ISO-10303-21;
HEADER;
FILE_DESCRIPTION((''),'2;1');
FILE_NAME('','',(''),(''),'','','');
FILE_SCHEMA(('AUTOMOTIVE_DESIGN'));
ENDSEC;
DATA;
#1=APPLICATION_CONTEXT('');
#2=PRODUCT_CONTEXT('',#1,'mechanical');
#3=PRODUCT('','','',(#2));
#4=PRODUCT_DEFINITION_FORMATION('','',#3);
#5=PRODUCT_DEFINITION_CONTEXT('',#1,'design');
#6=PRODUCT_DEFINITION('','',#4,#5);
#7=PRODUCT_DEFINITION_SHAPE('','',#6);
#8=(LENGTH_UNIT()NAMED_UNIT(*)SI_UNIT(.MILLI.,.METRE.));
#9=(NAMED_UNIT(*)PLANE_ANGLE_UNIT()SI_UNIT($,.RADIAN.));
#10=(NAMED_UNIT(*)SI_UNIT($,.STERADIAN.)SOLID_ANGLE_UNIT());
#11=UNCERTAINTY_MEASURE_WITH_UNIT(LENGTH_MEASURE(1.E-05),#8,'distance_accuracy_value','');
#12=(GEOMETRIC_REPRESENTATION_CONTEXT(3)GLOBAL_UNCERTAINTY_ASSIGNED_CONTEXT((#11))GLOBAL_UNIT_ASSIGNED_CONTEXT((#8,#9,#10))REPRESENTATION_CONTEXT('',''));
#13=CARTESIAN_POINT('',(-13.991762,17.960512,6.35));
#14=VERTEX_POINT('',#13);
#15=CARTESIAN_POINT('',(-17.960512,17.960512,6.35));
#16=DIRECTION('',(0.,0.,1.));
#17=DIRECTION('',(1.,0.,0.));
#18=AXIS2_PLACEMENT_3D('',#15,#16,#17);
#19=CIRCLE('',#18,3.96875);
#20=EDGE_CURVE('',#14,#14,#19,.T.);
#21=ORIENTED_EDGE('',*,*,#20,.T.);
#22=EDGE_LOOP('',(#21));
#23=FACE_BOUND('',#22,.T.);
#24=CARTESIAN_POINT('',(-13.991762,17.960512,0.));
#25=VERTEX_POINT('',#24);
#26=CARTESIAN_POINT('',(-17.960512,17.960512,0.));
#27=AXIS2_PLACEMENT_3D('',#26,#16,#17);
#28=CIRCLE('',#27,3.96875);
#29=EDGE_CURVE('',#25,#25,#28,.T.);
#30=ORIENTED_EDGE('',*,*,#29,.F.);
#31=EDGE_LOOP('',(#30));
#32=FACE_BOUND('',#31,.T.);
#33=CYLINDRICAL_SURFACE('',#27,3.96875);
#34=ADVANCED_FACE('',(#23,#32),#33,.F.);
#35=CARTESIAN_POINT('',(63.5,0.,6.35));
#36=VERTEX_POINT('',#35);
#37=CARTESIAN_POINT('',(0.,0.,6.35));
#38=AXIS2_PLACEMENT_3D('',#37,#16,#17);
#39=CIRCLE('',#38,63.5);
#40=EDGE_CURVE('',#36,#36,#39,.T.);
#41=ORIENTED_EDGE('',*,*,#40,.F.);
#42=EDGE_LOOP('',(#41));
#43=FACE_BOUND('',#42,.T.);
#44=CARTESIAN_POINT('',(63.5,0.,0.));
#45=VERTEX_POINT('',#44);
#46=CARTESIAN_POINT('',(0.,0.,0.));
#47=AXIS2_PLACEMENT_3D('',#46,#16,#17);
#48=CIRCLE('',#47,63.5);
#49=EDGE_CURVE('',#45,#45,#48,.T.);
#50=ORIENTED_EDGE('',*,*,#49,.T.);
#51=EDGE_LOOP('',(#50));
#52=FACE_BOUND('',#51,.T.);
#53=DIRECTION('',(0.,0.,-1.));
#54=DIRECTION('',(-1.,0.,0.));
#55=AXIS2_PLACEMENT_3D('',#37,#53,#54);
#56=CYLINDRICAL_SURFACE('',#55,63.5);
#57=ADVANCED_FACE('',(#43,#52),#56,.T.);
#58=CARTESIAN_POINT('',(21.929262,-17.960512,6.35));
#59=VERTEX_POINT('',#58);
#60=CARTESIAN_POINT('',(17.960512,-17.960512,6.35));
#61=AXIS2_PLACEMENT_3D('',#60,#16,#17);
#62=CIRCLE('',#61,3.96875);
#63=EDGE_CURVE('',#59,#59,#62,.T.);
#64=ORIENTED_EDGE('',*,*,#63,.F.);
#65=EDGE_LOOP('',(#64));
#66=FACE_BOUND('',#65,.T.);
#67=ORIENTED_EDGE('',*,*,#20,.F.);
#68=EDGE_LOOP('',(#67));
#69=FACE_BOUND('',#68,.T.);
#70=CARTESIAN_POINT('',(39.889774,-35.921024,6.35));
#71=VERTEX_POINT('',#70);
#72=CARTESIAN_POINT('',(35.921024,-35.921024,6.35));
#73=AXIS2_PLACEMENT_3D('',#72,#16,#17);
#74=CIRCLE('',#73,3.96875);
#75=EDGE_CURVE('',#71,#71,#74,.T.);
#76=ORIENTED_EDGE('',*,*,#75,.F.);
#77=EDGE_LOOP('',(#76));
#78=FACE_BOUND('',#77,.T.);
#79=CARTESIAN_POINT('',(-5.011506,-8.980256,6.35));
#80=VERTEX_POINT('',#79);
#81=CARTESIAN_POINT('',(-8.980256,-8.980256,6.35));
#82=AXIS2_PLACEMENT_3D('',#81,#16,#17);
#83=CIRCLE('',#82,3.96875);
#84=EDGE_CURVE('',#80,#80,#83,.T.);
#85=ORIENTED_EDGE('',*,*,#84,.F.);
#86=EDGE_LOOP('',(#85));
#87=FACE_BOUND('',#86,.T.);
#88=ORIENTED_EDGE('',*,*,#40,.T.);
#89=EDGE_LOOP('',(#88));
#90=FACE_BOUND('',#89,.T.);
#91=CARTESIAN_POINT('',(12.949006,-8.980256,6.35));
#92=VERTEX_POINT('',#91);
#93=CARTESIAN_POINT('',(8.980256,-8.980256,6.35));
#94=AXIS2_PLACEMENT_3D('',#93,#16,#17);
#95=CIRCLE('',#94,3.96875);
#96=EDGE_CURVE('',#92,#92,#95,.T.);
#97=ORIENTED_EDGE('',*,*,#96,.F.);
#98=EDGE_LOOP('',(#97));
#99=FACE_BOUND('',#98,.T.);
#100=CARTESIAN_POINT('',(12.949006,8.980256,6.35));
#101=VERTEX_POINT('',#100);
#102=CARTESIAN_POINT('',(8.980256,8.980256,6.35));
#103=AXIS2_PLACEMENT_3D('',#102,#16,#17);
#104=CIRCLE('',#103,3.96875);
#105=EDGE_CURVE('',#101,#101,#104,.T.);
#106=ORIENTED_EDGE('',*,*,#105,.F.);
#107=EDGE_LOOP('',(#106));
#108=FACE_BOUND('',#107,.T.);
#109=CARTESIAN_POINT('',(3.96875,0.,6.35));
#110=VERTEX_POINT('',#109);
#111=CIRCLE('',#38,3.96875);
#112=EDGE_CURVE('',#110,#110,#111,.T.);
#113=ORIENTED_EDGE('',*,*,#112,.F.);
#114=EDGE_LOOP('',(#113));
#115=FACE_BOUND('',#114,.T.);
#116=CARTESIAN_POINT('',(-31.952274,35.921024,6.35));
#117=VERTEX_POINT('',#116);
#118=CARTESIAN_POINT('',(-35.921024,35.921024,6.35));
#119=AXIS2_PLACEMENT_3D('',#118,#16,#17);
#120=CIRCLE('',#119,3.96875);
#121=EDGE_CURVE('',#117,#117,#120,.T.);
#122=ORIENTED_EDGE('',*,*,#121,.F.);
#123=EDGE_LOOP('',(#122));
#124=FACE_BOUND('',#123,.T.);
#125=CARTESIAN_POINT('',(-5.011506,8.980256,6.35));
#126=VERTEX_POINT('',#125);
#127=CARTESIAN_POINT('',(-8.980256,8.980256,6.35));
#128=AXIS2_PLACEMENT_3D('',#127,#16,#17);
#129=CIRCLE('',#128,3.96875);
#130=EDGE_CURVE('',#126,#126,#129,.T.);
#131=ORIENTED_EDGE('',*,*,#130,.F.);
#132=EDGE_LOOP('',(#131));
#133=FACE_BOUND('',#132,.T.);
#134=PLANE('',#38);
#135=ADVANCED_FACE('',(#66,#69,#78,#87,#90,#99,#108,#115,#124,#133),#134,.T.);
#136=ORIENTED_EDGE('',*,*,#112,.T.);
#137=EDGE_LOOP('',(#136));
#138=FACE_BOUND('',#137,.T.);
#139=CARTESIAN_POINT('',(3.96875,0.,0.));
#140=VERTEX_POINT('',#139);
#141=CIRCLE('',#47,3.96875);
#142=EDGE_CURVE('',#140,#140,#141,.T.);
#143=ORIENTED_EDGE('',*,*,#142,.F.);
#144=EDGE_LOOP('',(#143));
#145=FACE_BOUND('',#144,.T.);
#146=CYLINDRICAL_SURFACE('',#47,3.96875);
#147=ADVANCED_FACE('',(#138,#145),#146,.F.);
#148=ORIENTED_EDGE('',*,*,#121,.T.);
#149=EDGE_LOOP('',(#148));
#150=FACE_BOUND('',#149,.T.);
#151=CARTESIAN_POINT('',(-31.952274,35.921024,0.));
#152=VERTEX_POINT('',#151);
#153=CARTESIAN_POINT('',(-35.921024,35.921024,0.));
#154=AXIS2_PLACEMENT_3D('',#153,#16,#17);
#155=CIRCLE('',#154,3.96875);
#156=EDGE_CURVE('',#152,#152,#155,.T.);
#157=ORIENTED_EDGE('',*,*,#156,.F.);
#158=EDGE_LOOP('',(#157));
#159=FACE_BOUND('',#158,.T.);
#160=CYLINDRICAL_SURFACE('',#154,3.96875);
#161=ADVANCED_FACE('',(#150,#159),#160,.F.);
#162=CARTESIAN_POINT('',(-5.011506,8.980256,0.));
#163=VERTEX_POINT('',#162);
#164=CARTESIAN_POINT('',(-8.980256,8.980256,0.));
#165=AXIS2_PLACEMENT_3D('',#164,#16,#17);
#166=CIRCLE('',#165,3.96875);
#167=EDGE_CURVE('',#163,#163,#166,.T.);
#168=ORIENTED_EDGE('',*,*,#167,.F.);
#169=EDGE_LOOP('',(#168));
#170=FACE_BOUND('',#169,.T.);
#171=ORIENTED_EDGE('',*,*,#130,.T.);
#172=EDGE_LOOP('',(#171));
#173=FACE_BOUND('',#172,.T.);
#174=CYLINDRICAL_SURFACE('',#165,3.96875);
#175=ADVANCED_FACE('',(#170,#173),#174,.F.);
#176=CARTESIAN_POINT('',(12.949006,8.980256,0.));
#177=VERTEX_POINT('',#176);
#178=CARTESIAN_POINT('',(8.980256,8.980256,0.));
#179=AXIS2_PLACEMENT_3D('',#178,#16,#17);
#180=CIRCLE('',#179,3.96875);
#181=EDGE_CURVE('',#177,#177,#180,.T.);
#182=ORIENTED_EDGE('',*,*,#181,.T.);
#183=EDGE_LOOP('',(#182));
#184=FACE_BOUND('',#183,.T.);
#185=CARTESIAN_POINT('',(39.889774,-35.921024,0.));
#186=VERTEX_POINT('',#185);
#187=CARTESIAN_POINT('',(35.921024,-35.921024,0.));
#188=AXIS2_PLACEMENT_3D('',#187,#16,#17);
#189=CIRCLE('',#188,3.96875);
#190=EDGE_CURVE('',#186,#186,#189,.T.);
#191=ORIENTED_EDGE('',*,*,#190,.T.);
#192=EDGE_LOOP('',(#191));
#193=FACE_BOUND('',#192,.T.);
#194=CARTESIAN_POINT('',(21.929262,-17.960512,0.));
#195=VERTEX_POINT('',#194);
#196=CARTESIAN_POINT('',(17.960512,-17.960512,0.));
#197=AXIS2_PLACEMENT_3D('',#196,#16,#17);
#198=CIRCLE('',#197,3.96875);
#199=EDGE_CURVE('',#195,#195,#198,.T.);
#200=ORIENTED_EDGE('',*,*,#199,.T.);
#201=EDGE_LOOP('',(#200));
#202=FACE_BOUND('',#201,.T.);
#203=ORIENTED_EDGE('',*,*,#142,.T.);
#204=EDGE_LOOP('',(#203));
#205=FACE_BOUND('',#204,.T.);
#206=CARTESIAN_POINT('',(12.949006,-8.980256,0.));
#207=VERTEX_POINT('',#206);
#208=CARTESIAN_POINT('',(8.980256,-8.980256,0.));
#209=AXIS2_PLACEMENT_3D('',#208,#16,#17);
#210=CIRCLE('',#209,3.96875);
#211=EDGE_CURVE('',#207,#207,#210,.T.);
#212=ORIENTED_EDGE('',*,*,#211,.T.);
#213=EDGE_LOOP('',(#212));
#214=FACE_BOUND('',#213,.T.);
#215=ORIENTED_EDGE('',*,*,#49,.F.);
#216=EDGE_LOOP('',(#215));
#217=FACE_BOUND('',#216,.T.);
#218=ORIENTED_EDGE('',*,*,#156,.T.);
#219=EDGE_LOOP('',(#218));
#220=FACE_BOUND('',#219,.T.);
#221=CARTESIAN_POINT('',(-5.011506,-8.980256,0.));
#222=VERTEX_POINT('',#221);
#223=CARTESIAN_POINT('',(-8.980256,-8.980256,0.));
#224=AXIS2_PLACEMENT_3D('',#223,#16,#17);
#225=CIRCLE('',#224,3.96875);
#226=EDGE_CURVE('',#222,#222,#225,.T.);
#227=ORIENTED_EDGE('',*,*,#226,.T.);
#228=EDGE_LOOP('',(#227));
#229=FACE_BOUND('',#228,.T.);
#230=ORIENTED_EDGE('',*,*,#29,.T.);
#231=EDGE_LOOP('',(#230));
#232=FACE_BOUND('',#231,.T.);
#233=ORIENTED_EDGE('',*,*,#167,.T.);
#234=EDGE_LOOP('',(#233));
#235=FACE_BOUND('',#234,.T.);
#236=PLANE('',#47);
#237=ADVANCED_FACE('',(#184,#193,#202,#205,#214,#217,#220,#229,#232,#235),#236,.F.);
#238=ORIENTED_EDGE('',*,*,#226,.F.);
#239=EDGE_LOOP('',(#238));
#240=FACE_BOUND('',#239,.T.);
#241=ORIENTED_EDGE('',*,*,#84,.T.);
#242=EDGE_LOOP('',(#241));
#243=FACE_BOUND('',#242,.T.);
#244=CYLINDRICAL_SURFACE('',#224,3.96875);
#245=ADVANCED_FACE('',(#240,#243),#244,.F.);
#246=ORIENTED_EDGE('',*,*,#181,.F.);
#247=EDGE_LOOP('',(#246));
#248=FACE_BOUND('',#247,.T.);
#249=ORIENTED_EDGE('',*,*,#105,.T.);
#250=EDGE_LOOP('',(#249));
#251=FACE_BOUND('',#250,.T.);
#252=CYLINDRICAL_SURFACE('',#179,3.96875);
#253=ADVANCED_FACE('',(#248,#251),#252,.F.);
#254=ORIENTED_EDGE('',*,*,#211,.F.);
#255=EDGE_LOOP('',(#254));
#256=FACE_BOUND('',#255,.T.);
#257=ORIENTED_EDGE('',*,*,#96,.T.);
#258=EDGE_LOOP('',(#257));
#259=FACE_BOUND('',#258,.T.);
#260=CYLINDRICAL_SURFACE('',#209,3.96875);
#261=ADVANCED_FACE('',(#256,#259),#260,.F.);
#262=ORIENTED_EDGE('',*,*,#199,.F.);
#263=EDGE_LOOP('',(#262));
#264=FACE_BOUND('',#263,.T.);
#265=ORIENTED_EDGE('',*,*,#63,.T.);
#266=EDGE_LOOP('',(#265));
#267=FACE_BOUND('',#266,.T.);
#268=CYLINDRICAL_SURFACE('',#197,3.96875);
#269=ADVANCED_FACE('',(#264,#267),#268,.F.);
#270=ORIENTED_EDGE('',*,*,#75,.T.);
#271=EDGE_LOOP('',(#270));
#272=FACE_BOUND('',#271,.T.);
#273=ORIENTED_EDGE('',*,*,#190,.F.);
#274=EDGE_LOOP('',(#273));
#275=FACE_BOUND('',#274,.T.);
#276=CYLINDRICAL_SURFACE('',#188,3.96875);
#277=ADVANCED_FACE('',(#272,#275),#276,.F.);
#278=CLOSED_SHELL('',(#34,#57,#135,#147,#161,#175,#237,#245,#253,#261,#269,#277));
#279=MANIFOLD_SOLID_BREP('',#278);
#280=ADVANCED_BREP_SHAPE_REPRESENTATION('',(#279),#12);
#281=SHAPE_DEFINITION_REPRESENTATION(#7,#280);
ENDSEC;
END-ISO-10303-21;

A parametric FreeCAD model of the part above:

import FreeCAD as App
import Part
import Sketcher
from FreeCAD import Vector
Q = App.Units.Quantity

doc = App.newDocument("Part")
body = doc.addObject("PartDesign::Body", "Body")

sketch1 = body.newObject("Sketcher::SketchObject", "Sketch")
sketch1.AttachmentSupport = (doc.getObject("XY_Plane"), [""])
sketch1.MapMode = "FlatFace"
sketch1.addGeometry(Part.Circle(Vector(0, 0, 0), Vector(0, 0, 1), 64), False)
sketch1.addConstraint([
    Sketcher.Constraint("Coincident", 0, 3, -1, 1),
    Sketcher.Constraint("Diameter", 0, Q("5 in")),
])
pad1 = body.newObject("PartDesign::Pad", "Pad")
pad1.Profile = sketch1
pad1.Length = Q("0.25 in")

sketch2 = body.newObject("Sketcher::SketchObject", "Sketch001")
sketch2.AttachmentSupport = (doc.getObject("XY_Plane"), [""])
sketch2.MapMode = "FlatFace"
sketch2.AttachmentOffset = App.Placement(Vector(0, 0, 0.25 * 25.4), App.Rotation())
sketch2.addGeometry([
    Part.Circle(Vector(0, 0, 0), Vector(0, 0, 1), 4),
    Part.Circle(Vector(-9, 9, 0), Vector(0, 0, 1), 4),
    Part.Circle(Vector(9, -9, 0), Vector(0, 0, 1), 4),
    Part.Circle(Vector(9, 9, 0), Vector(0, 0, 1), 4),
    Part.Circle(Vector(-9, -9, 0), Vector(0, 0, 1), 4),
    Part.Circle(Vector(18, -18, 0), Vector(0, 0, 1), 4),
    Part.Circle(Vector(35.9, -35.9, 0), Vector(0, 0, 1), 4),
    Part.Circle(Vector(-18, 18, 0), Vector(0, 0, 1), 4),
    Part.Circle(Vector(-35.9, 35.9, 0), Vector(0, 0, 1), 4),
], False)
sketch2.addConstraint([
    Sketcher.Constraint("Coincident", 0, 3, -1, 1),
    Sketcher.Constraint("Equal", 0, 1),
    Sketcher.Constraint("Equal", 1, 2),
    Sketcher.Constraint("Equal", 2, 3),
    Sketcher.Constraint("Equal", 3, 4),
    Sketcher.Constraint("Equal", 4, 5),
    Sketcher.Constraint("Equal", 5, 6),
    Sketcher.Constraint("Equal", 6, 7),
    Sketcher.Constraint("Equal", 7, 8),
    Sketcher.Constraint("Symmetric", 1, 3, 2, 3, -1, 1),
    Sketcher.Constraint("Symmetric", 3, 3, 4, 3, -1, 1),
    Sketcher.Constraint("Symmetric", 5, 3, 7, 3, -1, 1),
    Sketcher.Constraint("Symmetric", 6, 3, 8, 3, -1, 1),
    Sketcher.Constraint("Symmetric", 1, 3, 3, 3, -2),
    Sketcher.Constraint("Diameter", 0, Q("0.3125 in")),
    Sketcher.Constraint("DistanceY", 5, 3, 3, 3, 26.940768),
    Sketcher.Constraint("DistanceX", 4, 3, 5, 3, 26.940768),
    Sketcher.Constraint("DistanceX", 2, 3, 6, 3, 26.940768),
    Sketcher.Constraint("DistanceY", 6, 3, 2, 3, 26.940768),
    Sketcher.Constraint("DistanceY", 6, 3, 3, 3, 44.901281),
    Sketcher.Constraint("DistanceX", 4, 3, 6, 3, 44.901281),
])
pocket1 = body.newObject("PartDesign::Pocket", "Pocket")
pocket1.Profile = sketch2
pocket1.Type = "ThroughAll"

doc.recompute()
